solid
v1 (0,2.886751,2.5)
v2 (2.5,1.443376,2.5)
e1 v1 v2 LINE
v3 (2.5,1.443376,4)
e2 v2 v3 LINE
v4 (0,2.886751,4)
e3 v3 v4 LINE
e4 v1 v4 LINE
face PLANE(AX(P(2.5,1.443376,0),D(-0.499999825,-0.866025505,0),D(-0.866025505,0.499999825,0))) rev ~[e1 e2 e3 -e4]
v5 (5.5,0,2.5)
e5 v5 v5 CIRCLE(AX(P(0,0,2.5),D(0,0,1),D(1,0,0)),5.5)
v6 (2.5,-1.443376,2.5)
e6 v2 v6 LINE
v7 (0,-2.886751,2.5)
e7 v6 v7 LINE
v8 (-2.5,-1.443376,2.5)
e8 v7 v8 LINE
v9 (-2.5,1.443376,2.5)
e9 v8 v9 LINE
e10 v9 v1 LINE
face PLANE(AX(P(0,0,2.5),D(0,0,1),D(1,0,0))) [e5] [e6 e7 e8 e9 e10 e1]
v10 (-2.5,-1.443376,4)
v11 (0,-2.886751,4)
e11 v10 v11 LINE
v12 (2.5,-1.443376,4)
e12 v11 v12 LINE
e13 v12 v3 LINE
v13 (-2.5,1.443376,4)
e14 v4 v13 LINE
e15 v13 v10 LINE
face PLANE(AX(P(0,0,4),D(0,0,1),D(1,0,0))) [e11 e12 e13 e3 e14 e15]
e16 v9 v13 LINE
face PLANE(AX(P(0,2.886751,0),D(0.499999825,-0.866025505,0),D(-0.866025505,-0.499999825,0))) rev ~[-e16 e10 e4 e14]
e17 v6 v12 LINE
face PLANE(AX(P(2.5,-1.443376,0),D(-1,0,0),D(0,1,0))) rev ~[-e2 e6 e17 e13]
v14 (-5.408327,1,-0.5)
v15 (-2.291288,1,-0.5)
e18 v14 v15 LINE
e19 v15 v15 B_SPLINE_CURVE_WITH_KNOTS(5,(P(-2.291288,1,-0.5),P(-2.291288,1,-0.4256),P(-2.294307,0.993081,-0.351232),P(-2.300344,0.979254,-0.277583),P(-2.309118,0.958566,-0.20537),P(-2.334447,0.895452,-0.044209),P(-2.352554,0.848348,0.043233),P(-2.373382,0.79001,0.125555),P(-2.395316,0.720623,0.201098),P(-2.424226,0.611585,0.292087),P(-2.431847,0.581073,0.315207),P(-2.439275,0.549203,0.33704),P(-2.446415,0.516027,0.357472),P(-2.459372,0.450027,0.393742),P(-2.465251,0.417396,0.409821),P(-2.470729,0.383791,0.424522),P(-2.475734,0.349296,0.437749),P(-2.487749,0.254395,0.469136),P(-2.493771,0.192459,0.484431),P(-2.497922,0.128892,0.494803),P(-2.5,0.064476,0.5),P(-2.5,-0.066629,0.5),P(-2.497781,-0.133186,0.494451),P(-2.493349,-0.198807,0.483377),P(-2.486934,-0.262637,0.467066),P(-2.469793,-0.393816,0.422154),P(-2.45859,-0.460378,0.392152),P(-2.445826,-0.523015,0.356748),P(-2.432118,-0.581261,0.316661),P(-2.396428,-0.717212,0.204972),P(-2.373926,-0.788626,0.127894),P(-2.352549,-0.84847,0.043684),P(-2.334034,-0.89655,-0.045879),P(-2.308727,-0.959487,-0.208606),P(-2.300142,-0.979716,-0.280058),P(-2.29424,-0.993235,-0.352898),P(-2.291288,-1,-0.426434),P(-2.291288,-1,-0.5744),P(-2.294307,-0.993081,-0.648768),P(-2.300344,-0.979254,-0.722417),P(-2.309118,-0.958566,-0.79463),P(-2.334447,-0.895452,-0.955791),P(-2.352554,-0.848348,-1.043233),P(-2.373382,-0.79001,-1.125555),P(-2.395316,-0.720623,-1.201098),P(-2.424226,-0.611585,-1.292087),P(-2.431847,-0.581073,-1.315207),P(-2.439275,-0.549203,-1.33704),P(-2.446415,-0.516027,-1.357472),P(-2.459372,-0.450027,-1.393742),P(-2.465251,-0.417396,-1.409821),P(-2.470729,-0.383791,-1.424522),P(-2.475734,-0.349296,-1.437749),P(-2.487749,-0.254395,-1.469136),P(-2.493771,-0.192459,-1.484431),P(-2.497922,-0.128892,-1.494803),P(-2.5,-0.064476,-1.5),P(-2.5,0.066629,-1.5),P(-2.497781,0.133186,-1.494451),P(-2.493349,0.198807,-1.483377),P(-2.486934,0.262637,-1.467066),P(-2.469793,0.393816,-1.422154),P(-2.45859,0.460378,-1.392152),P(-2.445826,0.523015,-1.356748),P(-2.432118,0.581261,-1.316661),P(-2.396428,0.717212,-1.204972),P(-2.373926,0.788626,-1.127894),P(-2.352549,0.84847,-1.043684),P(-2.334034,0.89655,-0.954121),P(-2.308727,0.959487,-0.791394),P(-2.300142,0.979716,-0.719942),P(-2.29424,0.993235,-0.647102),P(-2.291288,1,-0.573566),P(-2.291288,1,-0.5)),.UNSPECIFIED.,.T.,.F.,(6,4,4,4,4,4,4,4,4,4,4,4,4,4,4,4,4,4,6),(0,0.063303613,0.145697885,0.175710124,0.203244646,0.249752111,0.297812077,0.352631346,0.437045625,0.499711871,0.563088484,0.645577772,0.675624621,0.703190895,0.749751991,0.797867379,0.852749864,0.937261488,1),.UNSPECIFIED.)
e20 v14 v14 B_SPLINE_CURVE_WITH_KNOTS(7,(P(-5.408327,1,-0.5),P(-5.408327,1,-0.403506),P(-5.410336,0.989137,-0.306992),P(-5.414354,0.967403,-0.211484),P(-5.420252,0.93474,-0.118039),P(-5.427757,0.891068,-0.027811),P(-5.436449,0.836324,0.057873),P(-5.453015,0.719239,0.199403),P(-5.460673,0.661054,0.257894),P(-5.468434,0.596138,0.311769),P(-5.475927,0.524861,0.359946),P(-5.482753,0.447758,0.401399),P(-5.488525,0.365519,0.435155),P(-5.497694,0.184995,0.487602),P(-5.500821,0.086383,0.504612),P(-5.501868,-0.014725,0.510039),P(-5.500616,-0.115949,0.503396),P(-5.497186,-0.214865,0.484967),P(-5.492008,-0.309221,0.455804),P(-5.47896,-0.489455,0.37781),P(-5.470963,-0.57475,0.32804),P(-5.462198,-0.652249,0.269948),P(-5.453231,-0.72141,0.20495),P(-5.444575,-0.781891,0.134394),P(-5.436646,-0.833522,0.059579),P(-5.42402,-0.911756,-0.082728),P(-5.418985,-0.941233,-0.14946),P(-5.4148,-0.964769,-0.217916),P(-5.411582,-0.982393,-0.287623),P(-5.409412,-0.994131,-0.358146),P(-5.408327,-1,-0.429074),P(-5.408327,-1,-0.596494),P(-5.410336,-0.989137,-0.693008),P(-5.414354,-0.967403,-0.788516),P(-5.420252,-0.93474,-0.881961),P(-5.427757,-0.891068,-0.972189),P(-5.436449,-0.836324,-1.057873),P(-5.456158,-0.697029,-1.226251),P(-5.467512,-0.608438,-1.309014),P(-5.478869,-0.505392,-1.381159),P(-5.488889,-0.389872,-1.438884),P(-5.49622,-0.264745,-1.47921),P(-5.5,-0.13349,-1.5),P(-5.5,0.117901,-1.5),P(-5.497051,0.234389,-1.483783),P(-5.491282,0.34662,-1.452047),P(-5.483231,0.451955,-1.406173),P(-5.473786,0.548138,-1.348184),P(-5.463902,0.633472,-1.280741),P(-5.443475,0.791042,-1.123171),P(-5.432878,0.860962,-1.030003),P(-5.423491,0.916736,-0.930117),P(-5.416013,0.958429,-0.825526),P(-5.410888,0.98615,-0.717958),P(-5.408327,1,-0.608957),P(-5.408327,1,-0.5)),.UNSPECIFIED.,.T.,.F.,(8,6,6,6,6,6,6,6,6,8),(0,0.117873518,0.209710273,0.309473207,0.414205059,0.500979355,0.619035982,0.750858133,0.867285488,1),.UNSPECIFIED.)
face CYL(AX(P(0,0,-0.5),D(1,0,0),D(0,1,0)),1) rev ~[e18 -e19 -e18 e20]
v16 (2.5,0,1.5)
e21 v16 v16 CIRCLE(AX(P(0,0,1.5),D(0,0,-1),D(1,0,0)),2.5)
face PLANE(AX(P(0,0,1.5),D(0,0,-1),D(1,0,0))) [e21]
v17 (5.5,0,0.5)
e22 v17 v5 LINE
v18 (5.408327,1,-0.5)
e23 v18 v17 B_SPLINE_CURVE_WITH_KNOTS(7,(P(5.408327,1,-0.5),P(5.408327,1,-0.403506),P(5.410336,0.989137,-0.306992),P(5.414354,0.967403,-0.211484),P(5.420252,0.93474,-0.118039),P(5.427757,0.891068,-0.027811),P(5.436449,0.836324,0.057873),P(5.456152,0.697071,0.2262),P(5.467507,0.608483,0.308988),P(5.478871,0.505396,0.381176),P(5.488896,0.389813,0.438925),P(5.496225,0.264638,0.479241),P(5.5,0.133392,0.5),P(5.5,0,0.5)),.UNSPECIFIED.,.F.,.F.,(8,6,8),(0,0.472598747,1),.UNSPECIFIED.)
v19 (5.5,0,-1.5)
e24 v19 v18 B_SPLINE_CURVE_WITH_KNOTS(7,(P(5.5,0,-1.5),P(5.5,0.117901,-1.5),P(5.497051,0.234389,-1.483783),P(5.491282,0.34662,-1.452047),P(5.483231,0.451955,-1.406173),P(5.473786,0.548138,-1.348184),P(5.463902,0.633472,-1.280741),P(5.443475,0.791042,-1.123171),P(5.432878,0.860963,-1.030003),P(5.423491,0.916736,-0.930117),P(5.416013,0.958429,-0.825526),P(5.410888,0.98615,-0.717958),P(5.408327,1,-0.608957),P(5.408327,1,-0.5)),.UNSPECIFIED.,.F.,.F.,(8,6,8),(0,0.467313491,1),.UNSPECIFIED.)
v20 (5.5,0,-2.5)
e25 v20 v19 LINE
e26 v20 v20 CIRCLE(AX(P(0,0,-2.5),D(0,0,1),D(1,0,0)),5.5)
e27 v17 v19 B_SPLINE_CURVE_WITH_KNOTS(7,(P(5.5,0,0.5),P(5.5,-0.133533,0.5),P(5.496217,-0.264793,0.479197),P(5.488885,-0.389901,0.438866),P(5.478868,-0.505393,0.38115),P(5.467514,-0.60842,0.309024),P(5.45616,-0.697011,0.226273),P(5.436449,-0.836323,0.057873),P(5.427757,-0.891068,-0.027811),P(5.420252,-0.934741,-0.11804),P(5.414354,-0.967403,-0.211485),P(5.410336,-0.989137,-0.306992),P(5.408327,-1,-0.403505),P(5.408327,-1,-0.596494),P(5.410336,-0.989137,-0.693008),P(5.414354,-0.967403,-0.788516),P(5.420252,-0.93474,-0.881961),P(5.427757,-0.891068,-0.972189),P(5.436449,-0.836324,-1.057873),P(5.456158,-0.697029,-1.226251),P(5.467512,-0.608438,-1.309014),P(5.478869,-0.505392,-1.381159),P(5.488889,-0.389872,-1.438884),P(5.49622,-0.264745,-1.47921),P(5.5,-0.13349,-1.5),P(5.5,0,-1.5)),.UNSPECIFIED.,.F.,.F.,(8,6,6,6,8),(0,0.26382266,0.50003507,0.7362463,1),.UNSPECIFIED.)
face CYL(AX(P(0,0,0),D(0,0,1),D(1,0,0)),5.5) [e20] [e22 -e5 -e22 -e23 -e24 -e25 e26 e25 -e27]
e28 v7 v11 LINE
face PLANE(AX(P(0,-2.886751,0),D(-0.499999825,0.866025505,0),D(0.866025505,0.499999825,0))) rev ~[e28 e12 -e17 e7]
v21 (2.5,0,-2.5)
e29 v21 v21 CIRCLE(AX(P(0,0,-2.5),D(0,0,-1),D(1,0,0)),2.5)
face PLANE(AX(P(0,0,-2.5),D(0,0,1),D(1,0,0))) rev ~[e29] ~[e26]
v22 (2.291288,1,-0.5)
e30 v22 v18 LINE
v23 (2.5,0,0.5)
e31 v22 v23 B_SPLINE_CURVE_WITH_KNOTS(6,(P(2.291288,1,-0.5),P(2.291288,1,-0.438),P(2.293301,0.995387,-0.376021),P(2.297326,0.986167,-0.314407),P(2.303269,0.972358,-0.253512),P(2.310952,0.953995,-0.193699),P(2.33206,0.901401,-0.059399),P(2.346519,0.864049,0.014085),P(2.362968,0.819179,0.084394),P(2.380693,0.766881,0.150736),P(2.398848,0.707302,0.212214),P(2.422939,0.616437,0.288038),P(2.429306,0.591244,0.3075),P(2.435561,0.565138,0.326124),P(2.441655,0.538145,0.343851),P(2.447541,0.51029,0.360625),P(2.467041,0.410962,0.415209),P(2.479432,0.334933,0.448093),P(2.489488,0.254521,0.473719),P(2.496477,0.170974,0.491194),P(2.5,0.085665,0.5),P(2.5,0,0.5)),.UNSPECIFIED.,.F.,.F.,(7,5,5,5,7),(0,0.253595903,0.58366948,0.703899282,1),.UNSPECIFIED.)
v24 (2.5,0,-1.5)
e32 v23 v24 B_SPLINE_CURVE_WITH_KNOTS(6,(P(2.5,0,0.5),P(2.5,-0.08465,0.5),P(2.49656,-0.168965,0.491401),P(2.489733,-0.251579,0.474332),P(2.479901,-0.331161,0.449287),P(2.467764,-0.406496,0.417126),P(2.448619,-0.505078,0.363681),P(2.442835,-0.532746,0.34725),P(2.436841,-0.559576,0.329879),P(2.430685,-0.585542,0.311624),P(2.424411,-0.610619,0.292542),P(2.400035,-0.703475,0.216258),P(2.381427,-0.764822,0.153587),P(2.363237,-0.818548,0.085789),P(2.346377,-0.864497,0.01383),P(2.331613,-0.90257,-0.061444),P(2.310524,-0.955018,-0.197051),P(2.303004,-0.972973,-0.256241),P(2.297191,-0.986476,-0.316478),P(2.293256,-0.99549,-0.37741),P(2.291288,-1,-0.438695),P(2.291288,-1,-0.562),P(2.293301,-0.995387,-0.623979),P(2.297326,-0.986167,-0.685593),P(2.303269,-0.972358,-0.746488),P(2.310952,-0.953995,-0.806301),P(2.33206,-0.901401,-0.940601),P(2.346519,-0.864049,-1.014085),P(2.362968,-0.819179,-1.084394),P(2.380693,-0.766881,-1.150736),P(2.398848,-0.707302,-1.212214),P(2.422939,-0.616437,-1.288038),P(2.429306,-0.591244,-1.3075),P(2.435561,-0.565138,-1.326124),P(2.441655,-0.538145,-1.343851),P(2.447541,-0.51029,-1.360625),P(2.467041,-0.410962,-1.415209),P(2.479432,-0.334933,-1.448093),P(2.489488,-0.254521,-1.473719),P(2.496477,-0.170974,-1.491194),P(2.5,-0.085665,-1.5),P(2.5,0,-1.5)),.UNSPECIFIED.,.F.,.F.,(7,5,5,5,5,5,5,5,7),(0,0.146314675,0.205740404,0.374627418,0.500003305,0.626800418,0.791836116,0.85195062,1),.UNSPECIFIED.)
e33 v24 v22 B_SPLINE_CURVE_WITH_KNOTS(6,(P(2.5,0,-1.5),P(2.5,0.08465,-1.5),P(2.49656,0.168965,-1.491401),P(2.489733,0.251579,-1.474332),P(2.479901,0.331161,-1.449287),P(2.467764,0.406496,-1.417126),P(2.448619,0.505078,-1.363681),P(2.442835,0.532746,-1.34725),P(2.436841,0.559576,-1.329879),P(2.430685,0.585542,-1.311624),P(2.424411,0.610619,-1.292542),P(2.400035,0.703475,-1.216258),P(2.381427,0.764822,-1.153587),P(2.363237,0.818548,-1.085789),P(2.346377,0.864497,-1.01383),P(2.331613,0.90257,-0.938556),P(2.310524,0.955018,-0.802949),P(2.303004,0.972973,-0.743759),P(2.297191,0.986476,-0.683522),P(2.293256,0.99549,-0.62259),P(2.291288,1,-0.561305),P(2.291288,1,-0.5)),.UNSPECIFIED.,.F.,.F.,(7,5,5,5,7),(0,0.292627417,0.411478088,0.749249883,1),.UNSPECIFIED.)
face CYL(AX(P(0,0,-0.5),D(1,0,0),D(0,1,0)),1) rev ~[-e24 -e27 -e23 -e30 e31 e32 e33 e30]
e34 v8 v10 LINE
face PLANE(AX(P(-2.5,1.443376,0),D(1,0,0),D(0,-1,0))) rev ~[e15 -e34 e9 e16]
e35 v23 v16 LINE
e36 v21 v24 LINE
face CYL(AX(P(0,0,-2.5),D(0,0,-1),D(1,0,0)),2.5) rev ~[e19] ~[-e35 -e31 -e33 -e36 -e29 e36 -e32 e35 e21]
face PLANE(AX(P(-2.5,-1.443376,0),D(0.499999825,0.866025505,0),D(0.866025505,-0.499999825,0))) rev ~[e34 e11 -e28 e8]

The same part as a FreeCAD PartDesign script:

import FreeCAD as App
import Part
import Sketcher

V = App.Vector
Q = App.Units.Quantity


def add_polygon(sketch, points):
    """Adds a closed chain of lines whose ends are joined by coincident constraints."""
    first, n = sketch.GeometryCount, len(points)
    for a, b in zip(points, points[1:] + points[:1]):
        sketch.addGeometry(Part.LineSegment(App.Vector(*a, 0), App.Vector(*b, 0)), False)
    for i in range(n):
        sketch.addConstraint(Sketcher.Constraint("Coincident", first + i, 2, first + (i + 1) % n, 1))

doc = App.newDocument("Part")
body = doc.addObject("PartDesign::Body", "Body")

# Sketch on XY plane
sketch1 = body.newObject("Sketcher::SketchObject", "Sketch")
sketch1.AttachmentSupport = (doc.getObject("XY_Plane"), [""])
sketch1.MapMode = "FlatFace"
sketch1.addGeometry(Part.Circle(V(0, 0, 0), V(0, 0, 1), 6), False)
sketch1.addConstraint(Sketcher.Constraint("Coincident", 0, 3, -1, 1))
sketch1.addConstraint(Sketcher.Constraint("Diameter", 0, 11.0))
pad1 = body.newObject("PartDesign::Pad", "Pad")
pad1.Profile = sketch1
pad1.Length = 5
pad1.Midplane = True

# Sketch on XY plane
sketch2 = body.newObject("Sketcher::SketchObject", "Sketch001")
sketch2.AttachmentSupport = (doc.getObject("XY_Plane"), [""])
sketch2.MapMode = "FlatFace"
add_polygon(sketch2, [(-2.5, -1.4), (0, -2.9), (2.5, -1.4), (2.5, 1.4), (0, 2.9), (-2.5, 1.4)])  # lines 0-5
sketch2.addConstraint(Sketcher.Constraint("Vertical", 2))
sketch2.addConstraint(Sketcher.Constraint("Vertical", 5))
sketch2.addConstraint(Sketcher.Constraint("Symmetric", 0, 2, 3, 2, -1, 1))
sketch2.addConstraint(Sketcher.Constraint("Symmetric", 1, 2, 4, 2, -1, 1))
sketch2.addConstraint(Sketcher.Constraint("PointOnObject", 0, 2, -2))
sketch2.addConstraint(Sketcher.Constraint("Parallel", 0, 3))
sketch2.addConstraint(Sketcher.Constraint("Horizontal", 2, 2, 4, 2))
sketch2.addConstraint(Sketcher.Constraint("Angle", 0, Q("-29.999988 deg")))
sketch2.addConstraint(Sketcher.Constraint("DistanceX", 4, 2, 2, 2, 5.0))
sketch2.addConstraint(Sketcher.Constraint("DistanceY", 2, 1, 2, 2, 2.886752))
pad2 = body.newObject("PartDesign::Pad", "Pad001")
pad2.Profile = sketch2
pad2.Length = 4

# Sketch on YZ plane
sketch3 = body.newObject("Sketcher::SketchObject", "Sketch002")
sketch3.AttachmentSupport = (doc.getObject("YZ_Plane"), [""])
sketch3.MapMode = "FlatFace"
sketch3.addGeometry(Part.Circle(V(0, -0.5, 0), V(0, 0, 1), 1), False)
sketch3.addConstraint(Sketcher.Constraint("PointOnObject", 0, 3, -2))
sketch3.addConstraint(Sketcher.Constraint("Diameter", 0, 2.0))
sketch3.addConstraint(Sketcher.Constraint("DistanceY", 0, 3, -1, 1, 0.5))
pocket1 = body.newObject("PartDesign::Pocket", "Pocket")
pocket1.Profile = sketch3
pocket1.Length = 100
pocket1.Midplane = True

# Sketch on XY plane
sketch4 = body.newObject("Sketcher::SketchObject", "Sketch003")
sketch4.AttachmentSupport = (doc.getObject("XY_Plane"), [""])
sketch4.MapMode = "FlatFace"
sketch4.AttachmentOffset = App.Placement(V(0, 0, -2.5), App.Rotation())
sketch4.addGeometry(Part.Circle(V(0, 0, 0), V(0, 0, 1), 2.5), False)
sketch4.addConstraint(Sketcher.Constraint("Coincident", 0, 3, -1, 1))
sketch4.addConstraint(Sketcher.Constraint("Diameter", 0, 5.0))
pocket2 = body.newObject("PartDesign::Pocket", "Pocket001")
pocket2.Profile = sketch4
pocket2.Length = 4
pocket2.Reversed = True

doc.recompute()
